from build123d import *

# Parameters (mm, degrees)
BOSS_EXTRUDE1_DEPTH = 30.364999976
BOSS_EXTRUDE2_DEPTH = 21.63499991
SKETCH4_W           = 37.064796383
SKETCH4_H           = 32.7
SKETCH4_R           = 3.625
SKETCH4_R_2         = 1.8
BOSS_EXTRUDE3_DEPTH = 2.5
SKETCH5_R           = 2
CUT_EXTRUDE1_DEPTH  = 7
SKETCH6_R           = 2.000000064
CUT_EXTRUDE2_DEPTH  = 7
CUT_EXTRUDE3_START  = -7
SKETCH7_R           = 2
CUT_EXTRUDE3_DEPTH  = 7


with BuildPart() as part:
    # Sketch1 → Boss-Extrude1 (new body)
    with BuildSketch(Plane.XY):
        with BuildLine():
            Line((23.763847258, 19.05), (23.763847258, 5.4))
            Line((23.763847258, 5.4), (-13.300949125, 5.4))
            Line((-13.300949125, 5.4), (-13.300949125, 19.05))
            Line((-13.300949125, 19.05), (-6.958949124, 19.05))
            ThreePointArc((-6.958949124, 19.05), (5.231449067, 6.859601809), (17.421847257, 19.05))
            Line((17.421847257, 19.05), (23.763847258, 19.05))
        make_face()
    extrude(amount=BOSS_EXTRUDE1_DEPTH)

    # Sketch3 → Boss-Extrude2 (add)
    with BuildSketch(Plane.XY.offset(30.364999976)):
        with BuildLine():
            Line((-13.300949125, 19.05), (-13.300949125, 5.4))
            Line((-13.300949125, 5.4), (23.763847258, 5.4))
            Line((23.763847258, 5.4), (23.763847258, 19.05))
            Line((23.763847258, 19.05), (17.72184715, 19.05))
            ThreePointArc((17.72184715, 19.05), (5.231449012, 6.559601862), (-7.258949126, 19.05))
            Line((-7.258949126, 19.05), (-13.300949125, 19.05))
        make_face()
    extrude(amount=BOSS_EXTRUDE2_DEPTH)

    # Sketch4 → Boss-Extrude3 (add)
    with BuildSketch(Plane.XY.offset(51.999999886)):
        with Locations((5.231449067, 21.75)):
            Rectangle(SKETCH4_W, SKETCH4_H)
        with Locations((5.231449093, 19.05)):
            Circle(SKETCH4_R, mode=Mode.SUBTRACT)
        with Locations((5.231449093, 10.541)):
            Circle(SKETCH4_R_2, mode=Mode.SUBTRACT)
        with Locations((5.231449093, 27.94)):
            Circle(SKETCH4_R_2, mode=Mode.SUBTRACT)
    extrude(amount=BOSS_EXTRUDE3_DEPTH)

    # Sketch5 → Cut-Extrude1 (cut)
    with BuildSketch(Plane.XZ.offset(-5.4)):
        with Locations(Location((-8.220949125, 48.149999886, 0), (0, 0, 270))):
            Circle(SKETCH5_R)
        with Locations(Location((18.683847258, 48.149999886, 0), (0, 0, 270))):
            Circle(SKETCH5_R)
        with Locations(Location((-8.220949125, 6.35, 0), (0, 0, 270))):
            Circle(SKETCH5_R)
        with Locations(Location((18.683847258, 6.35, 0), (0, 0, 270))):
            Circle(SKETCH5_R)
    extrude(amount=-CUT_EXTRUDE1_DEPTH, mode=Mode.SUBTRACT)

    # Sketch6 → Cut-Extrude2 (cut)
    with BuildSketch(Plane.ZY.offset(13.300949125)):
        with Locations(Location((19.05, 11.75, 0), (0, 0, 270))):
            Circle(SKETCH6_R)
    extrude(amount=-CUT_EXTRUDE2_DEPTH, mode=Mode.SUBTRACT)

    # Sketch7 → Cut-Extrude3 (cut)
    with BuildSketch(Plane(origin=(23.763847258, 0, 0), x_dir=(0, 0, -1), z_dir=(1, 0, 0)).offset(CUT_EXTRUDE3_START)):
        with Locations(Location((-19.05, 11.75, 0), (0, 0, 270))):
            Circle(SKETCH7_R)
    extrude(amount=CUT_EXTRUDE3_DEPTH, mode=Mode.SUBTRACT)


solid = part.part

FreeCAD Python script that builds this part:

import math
import FreeCAD as App
import Part
import Sketcher

V = App.Vector
Q = App.Units.Quantity


def add_polygon(sketch, points):
    """Adds a closed chain of lines whose ends are joined by coincident constraints."""
    first, n = sketch.GeometryCount, len(points)
    for a, b in zip(points, points[1:] + points[:1]):
        sketch.addGeometry(Part.LineSegment(App.Vector(*a, 0), App.Vector(*b, 0)), False)
    for i in range(n):
        sketch.addConstraint(Sketcher.Constraint("Coincident", first + i, 2, first + (i + 1) % n, 1))

doc = App.newDocument("Part")
body = doc.addObject("PartDesign::Body", "Body")

sketch1 = body.newObject("Sketcher::SketchObject", "Sketch")
sketch1.AttachmentSupport = (doc.getObject("XY_Plane"), [""])
sketch1.MapMode = "FlatFace"
sketch1.addGeometry([
    Part.LineSegment(V(23.763847, 5.4, 0), V(23.763847, 19.05, 0)),
    Part.LineSegment(V(23.763847, 19.05, 0), V(17.421847, 19.05, 0)),
    Part.ArcOfCircle(Part.Circle(V(5.231449, 19.05, 0), V(0, 0, 1), 12.190398), math.radians(180), math.radians(360)),
    Part.LineSegment(V(-6.958949, 19.05, 0), V(-13.300949, 19.05, 0)),
    Part.LineSegment(V(-13.300949, 19.05, 0), V(-13.300949, 5.4, 0)),
    Part.LineSegment(V(-13.300949, 5.4, 0), V(23.763847, 5.4, 0)),
], False)
sketch1.addConstraint([
    Sketcher.Constraint("Coincident", 0, 2, 1, 1),
    Sketcher.Constraint("Coincident", 1, 2, 2, 2),
    Sketcher.Constraint("Coincident", 2, 1, 3, 1),
    Sketcher.Constraint("Coincident", 3, 2, 4, 1),
    Sketcher.Constraint("Coincident", 4, 2, 5, 1),
    Sketcher.Constraint("Coincident", 5, 2, 0, 1),
    Sketcher.Constraint("Vertical", 0),
    Sketcher.Constraint("Horizontal", 1),
    Sketcher.Constraint("Horizontal", 3),
    Sketcher.Constraint("Vertical", 4),
    Sketcher.Constraint("Horizontal", 5),
    Sketcher.Constraint("Horizontal", 2, 3, 0, 2),
    Sketcher.Constraint("Horizontal", 1, 2, 2, 1),
    Sketcher.Constraint("Equal", 1, 3),
    Sketcher.Constraint("DistanceY", 0, 1, 0, 2, Q("13.65 mm")),
    Sketcher.Constraint("DistanceY", -1, 1, 4, 2, Q("5.4 mm")),
    Sketcher.Constraint("Radius", 2, Q("12.190398 mm")),
    Sketcher.Constraint("DistanceX", 1, 2, 1, 1, Q("6.342 mm")),
    Sketcher.Constraint("DistanceX", -1, 1, 2, 3, Q("5.231449 mm")),
])
pad1 = body.newObject("PartDesign::Pad", "Pad")
pad1.Profile = sketch1
pad1.Length = 30.365

sketch2 = body.newObject("Sketcher::SketchObject", "Sketch001")
sketch2.AttachmentSupport = (doc.getObject("XY_Plane"), [""])
sketch2.MapMode = "FlatFace"
sketch2.AttachmentOffset = App.Placement(V(0, 0, 30.365), App.Rotation())
sketch2.addGeometry([
    Part.LineSegment(V(-13.300949, 19.05, 0), V(-13.300949, 5.4, 0)),
    Part.LineSegment(V(-13.300949, 5.4, 0), V(23.763847, 5.4, 0)),
    Part.LineSegment(V(23.763847, 5.4, 0), V(23.763847, 19.05, 0)),
    Part.LineSegment(V(23.763847, 19.05, 0), V(17.721847, 19.05, 0)),
    Part.ArcOfCircle(Part.Circle(V(5.231449, 19.05, 0), V(0, 0, 1), 12.490398), math.radians(180), math.radians(360)),
    Part.LineSegment(V(-7.258949, 19.05, 0), V(-13.300949, 19.05, 0)),
], False)
sketch2.addConstraint([
    Sketcher.Constraint("Coincident", 0, 2, 1, 1),
    Sketcher.Constraint("Coincident", 1, 2, 2, 1),
    Sketcher.Constraint("Coincident", 2, 2, 3, 1),
    Sketcher.Constraint("Coincident", 3, 2, 4, 2),
    Sketcher.Constraint("Coincident", 4, 1, 5, 1),
    Sketcher.Constraint("Coincident", 5, 2, 0, 1),
    Sketcher.Constraint("Vertical", 0),
    Sketcher.Constraint("Horizontal", 1),
    Sketcher.Constraint("Vertical", 2),
    Sketcher.Constraint("Horizontal", 3),
    Sketcher.Constraint("Horizontal", 5),
    Sketcher.Constraint("Horizontal", 4, 3, 2, 2),
    Sketcher.Constraint("Horizontal", 3, 2, 4, 1),
    Sketcher.Constraint("Equal", 3, 5),
    Sketcher.Constraint("DistanceY", 0, 2, 0, 1, Q("13.65 mm")),
    Sketcher.Constraint("DistanceY", -1, 1, 0, 2, Q("5.4 mm")),
    Sketcher.Constraint("Radius", 4, Q("12.490398 mm")),
    Sketcher.Constraint("DistanceX", 3, 2, 3, 1, Q("6.042 mm")),
    Sketcher.Constraint("DistanceX", -1, 1, 4, 3, Q("5.231449 mm")),
])
pad2 = body.newObject("PartDesign::Pad", "Pad001")
pad2.Profile = sketch2
pad2.Length = 21.635

sketch3 = body.newObject("Sketcher::SketchObject", "Sketch002")
sketch3.AttachmentSupport = (doc.getObject("XY_Plane"), [""])
sketch3.MapMode = "FlatFace"
sketch3.AttachmentOffset = App.Placement(V(0, 0, 52), App.Rotation())
add_polygon(sketch3, [(-13.300949, 38.1), (-13.300949, 5.4), (23.763847, 5.4), (23.763847, 38.1)])
sketch3.addGeometry(Part.Circle(V(5.231449, 10.541, 0), V(0, 0, 1), 1.8), False)
sketch3.addGeometry(Part.Circle(V(5.231449, 19.05, 0), V(0, 0, 1), 3.625), False)
sketch3.addGeometry(Part.Circle(V(5.231449, 27.94, 0), V(0, 0, 1), 1.8), False)
sketch3.addConstraint([
    Sketcher.Constraint("Vertical", 0),
    Sketcher.Constraint("Horizontal", 1),
    Sketcher.Constraint("Vertical", 2),
    Sketcher.Constraint("Horizontal", 3),
    Sketcher.Constraint("Equal", 4, 6),
    Sketcher.Constraint("Vertical", 4, 3, 5, 3),
    Sketcher.Constraint("Vertical", 5, 3, 6, 3),
    Sketcher.Constraint("Diameter", 4, Q("3.6 mm")),
    Sketcher.Constraint("Diameter", 5, Q("7.25 mm")),
    Sketcher.Constraint("DistanceY", 0, 2, 0, 1, Q("32.7 mm")),
    Sketcher.Constraint("DistanceY", -1, 1, 0, 2, Q("5.4 mm")),
    Sketcher.Constraint("DistanceY", -1, 1, 5, 3, Q("19.05 mm")),
    Sketcher.Constraint("DistanceY", -1, 1, 6, 3, Q("27.94 mm")),
    Sketcher.Constraint("DistanceY", -1, 1, 4, 3, Q("10.541 mm")),
    Sketcher.Constraint("DistanceX", 0, 2, 4, 3, Q("18.532398 mm")),
    Sketcher.Constraint("DistanceX", 4, 3, 1, 2, Q("18.532398 mm")),
    Sketcher.Constraint("DistanceX", -1, 1, 4, 3, Q("5.231449 mm")),
])
pad3 = body.newObject("PartDesign::Pad", "Pad002")
pad3.Profile = sketch3
pad3.Length = 2.5

sketch4 = body.newObject("Sketcher::SketchObject", "Sketch003")
sketch4.AttachmentSupport = (doc.getObject("XZ_Plane"), [""])
sketch4.MapMode = "FlatFace"
sketch4.AttachmentOffset = App.Placement(V(0, 0, -5.4), App.Rotation())
sketch4.addGeometry([
    Part.Circle(V(-8.220949, 48.15, 0), V(0, 0, 1), 2),
    Part.Circle(V(18.683847, 48.15, 0), V(0, 0, 1), 2),
    Part.Circle(V(-8.220949, 6.35, 0), V(0, 0, 1), 2),
    Part.Circle(V(18.683847, 6.35, 0), V(0, 0, 1), 2),
], False)
sketch4.addConstraint([
    Sketcher.Constraint("Equal", 0, 1),
    Sketcher.Constraint("Equal", 1, 2),
    Sketcher.Constraint("Equal", 2, 3),
    Sketcher.Constraint("Horizontal", 0, 3, 1, 3),
    Sketcher.Constraint("Horizontal", 2, 3, 3, 3),
    Sketcher.Constraint("Vertical", 0, 3, 2, 3),
    Sketcher.Constraint("Vertical", 1, 3, 3, 3),
    Sketcher.Constraint("Diameter", 0, Q("4 mm")),
    Sketcher.Constraint("DistanceY", 2, 3, 0, 3, Q("41.8 mm")),
    Sketcher.Constraint("DistanceY", -1, 1, 0, 3, Q("48.15 mm")),
    Sketcher.Constraint("DistanceX", 0, 3, -1, 1, Q("8.220949 mm")),
    Sketcher.Constraint("DistanceX", -1, 1, 1, 3, Q("18.683847 mm")),
])
pocket1 = body.newObject("PartDesign::Pocket", "Pocket")
pocket1.Profile = sketch4
pocket1.Length = 7

sketch5 = body.newObject("Sketcher::SketchObject", "Sketch004")
sketch5.AttachmentSupport = (doc.getObject("YZ_Plane"), [""])
sketch5.MapMode = "FlatFace"
sketch5.AttachmentOffset = App.Placement(V(0, 0, -13.300949), App.Rotation())
sketch5.addGeometry(Part.Circle(V(11.75, 19.05, 0), V(0, 0, 1), 2), False)
sketch5.addConstraint([
    Sketcher.Constraint("Diameter", 0, Q("4 mm")),
    Sketcher.Constraint("DistanceX", -1, 1, 0, 3, Q("11.75 mm")),
    Sketcher.Constraint("DistanceY", -1, 1, 0, 3, Q("19.05 mm")),
])
pocket2 = body.newObject("PartDesign::Pocket", "Pocket001")
pocket2.Profile = sketch5
pocket2.Length = 7
pocket2.Reversed = True

sketch6 = body.newObject("Sketcher::SketchObject", "Sketch005")
sketch6.AttachmentSupport = (doc.getObject("YZ_Plane"), [""])
sketch6.MapMode = "FlatFace"
sketch6.AttachmentOffset = App.Placement(V(0, 0, 16.763847), App.Rotation())
sketch6.addGeometry(Part.Circle(V(11.75, 19.05, 0), V(0, 0, 1), 2), False)
sketch6.addConstraint([
    Sketcher.Constraint("Diameter", 0, Q("4 mm")),
    Sketcher.Constraint("DistanceX", -1, 1, 0, 3, Q("11.75 mm")),
    Sketcher.Constraint("DistanceY", -1, 1, 0, 3, Q("19.05 mm")),
])
pocket3 = body.newObject("PartDesign::Pocket", "Pocket002")
pocket3.Profile = sketch6
pocket3.Length = 7
pocket3.Reversed = True

doc.recompute()
